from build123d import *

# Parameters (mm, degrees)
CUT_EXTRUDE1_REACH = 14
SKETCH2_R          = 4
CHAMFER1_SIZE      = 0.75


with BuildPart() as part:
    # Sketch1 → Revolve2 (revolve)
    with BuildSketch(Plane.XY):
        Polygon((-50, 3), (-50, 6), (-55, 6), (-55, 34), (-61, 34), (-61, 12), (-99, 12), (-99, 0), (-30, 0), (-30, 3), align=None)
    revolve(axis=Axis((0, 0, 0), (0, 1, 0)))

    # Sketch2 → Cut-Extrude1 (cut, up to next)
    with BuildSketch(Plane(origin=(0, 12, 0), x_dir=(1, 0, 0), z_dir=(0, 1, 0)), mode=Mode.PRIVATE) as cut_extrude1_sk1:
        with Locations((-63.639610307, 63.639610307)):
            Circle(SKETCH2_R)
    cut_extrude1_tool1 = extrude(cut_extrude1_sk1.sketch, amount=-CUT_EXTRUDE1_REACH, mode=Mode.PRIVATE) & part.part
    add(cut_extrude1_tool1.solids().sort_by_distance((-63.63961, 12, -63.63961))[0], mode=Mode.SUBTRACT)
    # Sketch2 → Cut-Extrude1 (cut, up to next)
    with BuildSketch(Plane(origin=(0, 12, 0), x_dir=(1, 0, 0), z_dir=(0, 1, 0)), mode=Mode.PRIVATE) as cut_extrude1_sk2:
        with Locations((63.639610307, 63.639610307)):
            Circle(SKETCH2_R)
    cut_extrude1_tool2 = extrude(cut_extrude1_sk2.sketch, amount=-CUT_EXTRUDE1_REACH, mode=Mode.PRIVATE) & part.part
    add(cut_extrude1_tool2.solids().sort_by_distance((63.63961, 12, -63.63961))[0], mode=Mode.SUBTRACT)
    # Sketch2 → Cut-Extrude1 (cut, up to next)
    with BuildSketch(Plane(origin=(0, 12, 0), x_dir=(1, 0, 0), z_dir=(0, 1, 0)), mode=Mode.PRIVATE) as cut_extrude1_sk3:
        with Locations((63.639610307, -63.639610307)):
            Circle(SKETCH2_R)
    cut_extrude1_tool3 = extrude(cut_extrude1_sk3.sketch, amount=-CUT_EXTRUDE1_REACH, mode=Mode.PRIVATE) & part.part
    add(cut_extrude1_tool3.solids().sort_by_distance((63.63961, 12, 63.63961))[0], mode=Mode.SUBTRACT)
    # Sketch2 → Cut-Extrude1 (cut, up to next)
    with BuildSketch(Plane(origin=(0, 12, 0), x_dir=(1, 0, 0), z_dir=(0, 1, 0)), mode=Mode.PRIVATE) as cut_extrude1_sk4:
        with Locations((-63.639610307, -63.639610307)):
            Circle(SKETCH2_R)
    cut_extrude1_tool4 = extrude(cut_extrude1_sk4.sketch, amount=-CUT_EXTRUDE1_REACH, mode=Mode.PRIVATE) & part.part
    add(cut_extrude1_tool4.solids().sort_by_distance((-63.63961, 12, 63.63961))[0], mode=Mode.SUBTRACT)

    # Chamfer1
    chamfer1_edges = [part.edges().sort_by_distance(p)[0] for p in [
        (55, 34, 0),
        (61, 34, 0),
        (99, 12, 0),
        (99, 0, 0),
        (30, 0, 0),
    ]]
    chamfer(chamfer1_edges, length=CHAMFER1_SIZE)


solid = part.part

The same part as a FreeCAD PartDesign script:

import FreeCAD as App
import Part
import Sketcher

V = App.Vector
Q = App.Units.Quantity


def edges_at(feature, points):
    """Names of the edges that pass closest to the given points."""
    edges = feature.Shape.Edges
    near = lambda p: min(range(len(edges)), key=lambda i: edges[i].distToShape(Part.Vertex(*p))[0])
    return sorted({f"Edge{near(p) + 1}" for p in points})


def add_polygon(sketch, points):
    """Adds a closed chain of lines whose ends are joined by coincident constraints."""
    first, n = sketch.GeometryCount, len(points)
    for a, b in zip(points, points[1:] + points[:1]):
        sketch.addGeometry(Part.LineSegment(App.Vector(*a, 0), App.Vector(*b, 0)), False)
    for i in range(n):
        sketch.addConstraint(Sketcher.Constraint("Coincident", first + i, 2, first + (i + 1) % n, 1))

doc = App.newDocument("Part")
body = doc.addObject("PartDesign::Body", "Body")

# Sketch on XY plane
sketch1 = body.newObject("Sketcher::SketchObject", "Sketch")
sketch1.AttachmentSupport = (doc.getObject("XY_Plane"), [""])
sketch1.MapMode = "FlatFace"
add_polygon(sketch1, [(-50, 3), (-50, 6), (-55, 6), (-55, 34), (-61, 34), (-61, 12), (-99, 12), (-99, 0), (-30, 0), (-30, 3)])  # lines 0-9
sketch1.addConstraint([
    Sketcher.Constraint("Vertical", 0),
    Sketcher.Constraint("Horizontal", 1),
    Sketcher.Constraint("Vertical", 2),
    Sketcher.Constraint("Horizontal", 3),
    Sketcher.Constraint("Vertical", 4),
    Sketcher.Constraint("Horizontal", 5),
    Sketcher.Constraint("Vertical", 6),
    Sketcher.Constraint("Horizontal", 7),
    Sketcher.Constraint("Vertical", 8),
    Sketcher.Constraint("Horizontal", 9),
    Sketcher.Constraint("PointOnObject", 6, 2, -1),
    Sketcher.Constraint("Equal", 0, 8),
    Sketcher.Constraint("DistanceX", 1, 2, 1, 1, Q("5 mm")),
    Sketcher.Constraint("DistanceX", 3, 2, 3, 1, Q("6 mm")),
    Sketcher.Constraint("DistanceX", 5, 2, 5, 1, Q("38 mm")),
    Sketcher.Constraint("DistanceX", 7, 1, 7, 2, Q("69 mm")),
    Sketcher.Constraint("DistanceY", 0, 1, 0, 2, Q("3 mm")),
    Sketcher.Constraint("DistanceY", 2, 1, 2, 2, Q("28 mm")),
    Sketcher.Constraint("DistanceY", 4, 2, 4, 1, Q("22 mm")),
    Sketcher.Constraint("DistanceX", 0, 2, -1, 1, Q("50 mm")),
])
revolution = body.newObject("PartDesign::Revolution", "Revolution")
revolution.Profile = sketch1
revolution.ReferenceAxis = (sketch1, ["V_Axis"])
revolution.Angle = 360

# Sketch on XZ plane
sketch2 = body.newObject("Sketcher::SketchObject", "Sketch001")
sketch2.AttachmentSupport = (doc.getObject("XZ_Plane"), [""])
sketch2.MapMode = "FlatFace"
sketch2.AttachmentOffset = App.Placement(V(0, 0, -12), App.Rotation())
sketch2.addGeometry(Part.Circle(V(-63.63961, -63.63961, 0), V(0, 0, 1), 4), False)
sketch2.addConstraint([
    Sketcher.Constraint("Diameter", 0, Q("8 mm")),
    Sketcher.Constraint("DistanceX", 0, 3, -1, 1, Q("63.63961 mm")),
    Sketcher.Constraint("DistanceY", 0, 3, -1, 1, Q("63.63961 mm")),
])
pocket1 = body.newObject("PartDesign::Pocket", "Pocket")
pocket1.Profile = sketch2
pocket1.Type = "UpToFirst"
pocket1.Reversed = True

# Sketch on XZ plane
sketch3 = body.newObject("Sketcher::SketchObject", "Sketch002")
sketch3.AttachmentSupport = (doc.getObject("XZ_Plane"), [""])
sketch3.MapMode = "FlatFace"
sketch3.AttachmentOffset = App.Placement(V(0, 0, -12), App.Rotation())
sketch3.addGeometry(Part.Circle(V(63.63961, -63.63961, 0), V(0, 0, 1), 4), False)
sketch3.addConstraint([
    Sketcher.Constraint("Diameter", 0, Q("8 mm")),
    Sketcher.Constraint("DistanceX", -1, 1, 0, 3, Q("63.63961 mm")),
    Sketcher.Constraint("DistanceY", 0, 3, -1, 1, Q("63.63961 mm")),
])
pocket2 = body.newObject("PartDesign::Pocket", "Pocket001")
pocket2.Profile = sketch3
pocket2.Type = "UpToFirst"
pocket2.Reversed = True

# Sketch on XZ plane
sketch4 = body.newObject("Sketcher::SketchObject", "Sketch003")
sketch4.AttachmentSupport = (doc.getObject("XZ_Plane"), [""])
sketch4.MapMode = "FlatFace"
sketch4.AttachmentOffset = App.Placement(V(0, 0, -12), App.Rotation())
sketch4.addGeometry(Part.Circle(V(63.63961, 63.63961, 0), V(0, 0, 1), 4), False)
sketch4.addConstraint([
    Sketcher.Constraint("Diameter", 0, Q("8 mm")),
    Sketcher.Constraint("DistanceX", -1, 1, 0, 3, Q("63.63961 mm")),
    Sketcher.Constraint("DistanceY", -1, 1, 0, 3, Q("63.63961 mm")),
])
pocket3 = body.newObject("PartDesign::Pocket", "Pocket002")
pocket3.Profile = sketch4
pocket3.Type = "UpToFirst"
pocket3.Reversed = True

# Sketch on XZ plane
sketch5 = body.newObject("Sketcher::SketchObject", "Sketch004")
sketch5.AttachmentSupport = (doc.getObject("XZ_Plane"), [""])
sketch5.MapMode = "FlatFace"
sketch5.AttachmentOffset = App.Placement(V(0, 0, -12), App.Rotation())
sketch5.addGeometry(Part.Circle(V(-63.63961, 63.63961, 0), V(0, 0, 1), 4), False)
sketch5.addConstraint([
    Sketcher.Constraint("Diameter", 0, Q("8 mm")),
    Sketcher.Constraint("DistanceX", 0, 3, -1, 1, Q("63.63961 mm")),
    Sketcher.Constraint("DistanceY", -1, 1, 0, 3, Q("63.63961 mm")),
])
pocket4 = body.newObject("PartDesign::Pocket", "Pocket003")
pocket4.Profile = sketch5
pocket4.Type = "UpToFirst"
pocket4.Reversed = True
doc.recompute()

chamfer = body.newObject("PartDesign::Chamfer", "Chamfer")
chamfer.Base = (pocket4, edges_at(pocket4, [
    (55, 34, 0),
    (61, 34, 0),
    (99, 12, 0),
    (99, 0, 0),
    (30, 0, 0),
]))
chamfer.Size = 0.75

doc.recompute()
